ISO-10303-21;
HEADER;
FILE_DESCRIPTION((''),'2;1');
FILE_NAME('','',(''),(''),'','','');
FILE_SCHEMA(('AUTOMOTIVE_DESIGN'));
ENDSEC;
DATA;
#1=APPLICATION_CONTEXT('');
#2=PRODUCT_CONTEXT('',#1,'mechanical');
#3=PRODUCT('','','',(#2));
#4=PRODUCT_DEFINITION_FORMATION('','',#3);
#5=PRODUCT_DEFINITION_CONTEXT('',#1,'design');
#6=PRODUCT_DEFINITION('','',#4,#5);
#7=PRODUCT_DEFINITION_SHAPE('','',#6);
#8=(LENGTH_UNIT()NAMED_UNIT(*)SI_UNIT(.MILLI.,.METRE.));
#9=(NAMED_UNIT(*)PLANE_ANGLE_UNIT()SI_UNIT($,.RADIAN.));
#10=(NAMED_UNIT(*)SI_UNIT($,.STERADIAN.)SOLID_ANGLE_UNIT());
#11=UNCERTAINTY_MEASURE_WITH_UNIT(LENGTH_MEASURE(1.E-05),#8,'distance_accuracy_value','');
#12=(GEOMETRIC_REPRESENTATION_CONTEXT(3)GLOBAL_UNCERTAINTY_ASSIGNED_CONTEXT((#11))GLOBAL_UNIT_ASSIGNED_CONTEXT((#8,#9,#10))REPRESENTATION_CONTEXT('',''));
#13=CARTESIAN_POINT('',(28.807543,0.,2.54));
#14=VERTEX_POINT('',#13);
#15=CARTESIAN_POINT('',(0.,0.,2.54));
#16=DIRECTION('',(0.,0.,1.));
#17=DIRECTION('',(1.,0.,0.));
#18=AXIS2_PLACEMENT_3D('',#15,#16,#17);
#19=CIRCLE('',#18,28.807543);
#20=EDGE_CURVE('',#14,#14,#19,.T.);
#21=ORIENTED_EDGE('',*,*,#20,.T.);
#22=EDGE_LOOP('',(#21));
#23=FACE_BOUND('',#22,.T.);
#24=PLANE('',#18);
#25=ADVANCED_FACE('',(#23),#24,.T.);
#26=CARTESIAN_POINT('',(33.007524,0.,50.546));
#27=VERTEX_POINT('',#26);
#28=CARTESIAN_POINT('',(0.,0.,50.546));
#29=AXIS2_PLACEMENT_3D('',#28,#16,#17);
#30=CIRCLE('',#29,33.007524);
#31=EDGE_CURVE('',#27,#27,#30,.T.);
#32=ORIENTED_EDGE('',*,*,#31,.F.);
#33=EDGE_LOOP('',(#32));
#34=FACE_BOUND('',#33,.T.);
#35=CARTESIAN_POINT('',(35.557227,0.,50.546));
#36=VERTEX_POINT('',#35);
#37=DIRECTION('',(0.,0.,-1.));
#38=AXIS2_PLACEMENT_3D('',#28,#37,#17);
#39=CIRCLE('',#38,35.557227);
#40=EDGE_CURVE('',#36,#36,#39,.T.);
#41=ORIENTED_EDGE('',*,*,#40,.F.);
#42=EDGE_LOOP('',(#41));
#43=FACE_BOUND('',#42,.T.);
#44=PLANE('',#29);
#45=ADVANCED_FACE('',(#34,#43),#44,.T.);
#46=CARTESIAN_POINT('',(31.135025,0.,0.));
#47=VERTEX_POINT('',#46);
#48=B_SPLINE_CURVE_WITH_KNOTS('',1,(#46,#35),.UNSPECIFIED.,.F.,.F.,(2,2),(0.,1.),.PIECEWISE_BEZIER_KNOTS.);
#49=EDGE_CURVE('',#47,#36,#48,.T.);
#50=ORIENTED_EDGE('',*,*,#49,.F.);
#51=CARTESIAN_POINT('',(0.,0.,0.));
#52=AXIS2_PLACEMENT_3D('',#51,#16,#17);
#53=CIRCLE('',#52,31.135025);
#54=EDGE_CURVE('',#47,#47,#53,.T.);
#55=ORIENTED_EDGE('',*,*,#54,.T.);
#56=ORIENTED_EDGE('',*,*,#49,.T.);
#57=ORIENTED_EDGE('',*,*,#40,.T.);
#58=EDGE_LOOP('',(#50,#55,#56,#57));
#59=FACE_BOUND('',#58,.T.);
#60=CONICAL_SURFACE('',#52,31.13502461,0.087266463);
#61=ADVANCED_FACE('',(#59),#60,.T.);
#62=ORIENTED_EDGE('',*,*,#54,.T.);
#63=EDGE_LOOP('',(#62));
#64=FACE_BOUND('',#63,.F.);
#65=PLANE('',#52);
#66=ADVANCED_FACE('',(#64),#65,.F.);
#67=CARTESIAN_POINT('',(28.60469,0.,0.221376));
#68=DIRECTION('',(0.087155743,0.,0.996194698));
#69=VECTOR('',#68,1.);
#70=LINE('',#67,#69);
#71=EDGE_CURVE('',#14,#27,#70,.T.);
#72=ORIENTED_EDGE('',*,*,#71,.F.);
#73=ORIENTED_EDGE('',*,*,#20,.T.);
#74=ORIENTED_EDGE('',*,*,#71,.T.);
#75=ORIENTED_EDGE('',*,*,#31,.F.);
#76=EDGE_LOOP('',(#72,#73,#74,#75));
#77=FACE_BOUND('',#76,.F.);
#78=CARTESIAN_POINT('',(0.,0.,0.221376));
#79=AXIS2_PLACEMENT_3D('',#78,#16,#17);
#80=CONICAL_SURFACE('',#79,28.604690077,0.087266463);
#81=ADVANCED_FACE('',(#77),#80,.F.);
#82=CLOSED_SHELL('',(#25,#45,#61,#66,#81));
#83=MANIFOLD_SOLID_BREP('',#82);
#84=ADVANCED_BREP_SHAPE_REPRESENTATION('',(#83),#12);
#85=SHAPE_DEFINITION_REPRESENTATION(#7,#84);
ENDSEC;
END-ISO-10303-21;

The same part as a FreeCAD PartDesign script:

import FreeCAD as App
import Part
import Sketcher
Q = App.Units.Quantity


def faces_at(feature, points):
    """Names of the faces that lie closest to the given points."""
    faces = feature.Shape.Faces
    near = lambda p: min(range(len(faces)), key=lambda i: faces[i].distToShape(Part.Vertex(*p))[0])
    return sorted({f"Face{near(p) + 1}" for p in points})

doc = App.newDocument("Part")
body = doc.addObject("PartDesign::Body", "Body")

sketch1 = body.newObject("Sketcher::SketchObject", "Sketch")
sketch1.AttachmentSupport = (doc.getObject("XY_Plane"), [""])
sketch1.MapMode = "FlatFace"
sketch1.addGeometry(Part.Circle(App.Vector(0, 0, 0), App.Vector(0, 0, 1), 31), False)
sketch1.addConstraint(Sketcher.Constraint("Coincident", 0, 3, -1, 1))
sketch1.addConstraint(Sketcher.Constraint("Diameter", 0, Q("62.270049 mm")))
pad1 = body.newObject("PartDesign::Pad", "Pad")
pad1.Profile = sketch1
pad1.Length = Q("1.99 in")
pad1.TaperAngle = 5
doc.recompute()

thickness = body.newObject("PartDesign::Thickness", "Thickness")
thickness.Base = (pad1, faces_at(pad1, [(0, 0, 50.546)]))
thickness.Value = Q("0.1 in")
thickness.Reversed = True
thickness.Join = "Intersection"

doc.recompute()
